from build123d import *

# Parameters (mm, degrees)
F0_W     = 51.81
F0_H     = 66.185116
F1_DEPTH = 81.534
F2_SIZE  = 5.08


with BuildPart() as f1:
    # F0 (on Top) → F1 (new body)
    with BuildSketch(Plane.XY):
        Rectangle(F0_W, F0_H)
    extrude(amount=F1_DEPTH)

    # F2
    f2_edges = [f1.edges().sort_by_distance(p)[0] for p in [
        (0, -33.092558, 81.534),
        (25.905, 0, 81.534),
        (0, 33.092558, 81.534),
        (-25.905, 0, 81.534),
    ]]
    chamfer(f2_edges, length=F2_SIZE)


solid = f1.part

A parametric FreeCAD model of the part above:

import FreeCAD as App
import Part
import Sketcher
Q = App.Units.Quantity


def edges_at(feature, points):
    """Names of the edges that pass closest to the given points."""
    edges = feature.Shape.Edges
    near = lambda p: min(range(len(edges)), key=lambda i: edges[i].distToShape(Part.Vertex(*p))[0])
    return sorted({f"Edge{near(p) + 1}" for p in points})

doc = App.newDocument("Part")
body = doc.addObject("PartDesign::Body", "Body")

sketch1 = body.newObject("Sketcher::SketchObject", "Sketch")
sketch1.AttachmentSupport = (doc.getObject("XY_Plane"), [""])
sketch1.MapMode = "FlatFace"
sketch1.addGeometry([
    Part.LineSegment(App.Vector(-26, 33, 0), App.Vector(-26, -33, 0)),
    Part.LineSegment(App.Vector(-26, -33, 0), App.Vector(26, -33, 0)),
    Part.LineSegment(App.Vector(26, -33, 0), App.Vector(26, 33, 0)),
    Part.LineSegment(App.Vector(26, 33, 0), App.Vector(-26, 33, 0)),
], False)
sketch1.addConstraint([
    Sketcher.Constraint("Coincident", 0, 2, 1, 1),
    Sketcher.Constraint("Coincident", 1, 2, 2, 1),
    Sketcher.Constraint("Coincident", 2, 2, 3, 1),
    Sketcher.Constraint("Coincident", 3, 2, 0, 1),
    Sketcher.Constraint("Vertical", 0),
    Sketcher.Constraint("Horizontal", 1),
    Sketcher.Constraint("Vertical", 2),
    Sketcher.Constraint("Horizontal", 3),
    Sketcher.Constraint("Symmetric", 0, 2, 2, 2, -1, 1),
    Sketcher.Constraint("DistanceX", 1, 1, 1, 2, 51.81),
    Sketcher.Constraint("DistanceY", 0, 2, 0, 1, 66.185116),
])
pad1 = body.newObject("PartDesign::Pad", "Pad")
pad1.Profile = sketch1
pad1.Length = Q("3.21 in")
doc.recompute()

chamfer = body.newObject("PartDesign::Chamfer", "Chamfer")
chamfer.Base = (pad1, edges_at(pad1, [
    (0, -33.093, 81.534),
    (25.905, 0, 81.534),
    (0, 33.093, 81.534),
    (-25.905, 0, 81.534),
]))
chamfer.Size = Q("0.2 in")

doc.recompute()
